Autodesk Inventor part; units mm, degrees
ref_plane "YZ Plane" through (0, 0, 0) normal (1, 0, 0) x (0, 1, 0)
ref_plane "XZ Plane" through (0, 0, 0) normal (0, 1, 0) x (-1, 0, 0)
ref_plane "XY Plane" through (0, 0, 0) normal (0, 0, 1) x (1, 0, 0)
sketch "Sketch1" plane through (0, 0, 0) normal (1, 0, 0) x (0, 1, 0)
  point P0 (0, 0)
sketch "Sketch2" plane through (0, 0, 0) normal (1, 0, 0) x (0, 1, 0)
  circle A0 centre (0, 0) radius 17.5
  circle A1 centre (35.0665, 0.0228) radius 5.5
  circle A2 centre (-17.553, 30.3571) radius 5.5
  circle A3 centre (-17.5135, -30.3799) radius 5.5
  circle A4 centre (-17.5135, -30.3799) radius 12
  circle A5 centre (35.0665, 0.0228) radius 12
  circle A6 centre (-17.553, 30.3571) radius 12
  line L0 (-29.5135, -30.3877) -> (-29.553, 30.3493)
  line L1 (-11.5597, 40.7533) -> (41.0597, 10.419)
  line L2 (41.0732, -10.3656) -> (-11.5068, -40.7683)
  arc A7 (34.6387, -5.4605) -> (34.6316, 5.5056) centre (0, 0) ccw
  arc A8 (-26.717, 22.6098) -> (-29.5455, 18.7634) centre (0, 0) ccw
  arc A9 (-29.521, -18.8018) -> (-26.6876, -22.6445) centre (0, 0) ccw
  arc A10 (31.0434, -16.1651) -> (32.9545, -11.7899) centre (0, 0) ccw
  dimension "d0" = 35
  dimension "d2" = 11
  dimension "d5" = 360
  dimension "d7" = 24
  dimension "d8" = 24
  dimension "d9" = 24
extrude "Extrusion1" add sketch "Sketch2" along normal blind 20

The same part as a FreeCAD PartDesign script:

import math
import FreeCAD as App
import Part
import Sketcher

doc = App.newDocument("Part")
body = doc.addObject("PartDesign::Body", "Body")

sketch1 = body.newObject("Sketcher::SketchObject", "Sketch")
sketch1.AttachmentSupport = (doc.getObject("YZ_Plane"), [""])
sketch1.MapMode = "FlatFace"
sketch1.addGeometry([
    Part.ArcOfCircle(Part.Circle(App.Vector(-18, -30, 0), App.Vector(0, 0, 1), 12), math.radians(-180), math.radians(-60)),
    Part.LineSegment(App.Vector(-12, -41, 0), App.Vector(41, -10, 0)),
    Part.ArcOfCircle(Part.Circle(App.Vector(35, 0, 0), App.Vector(0, 0, 1), 12), math.radians(-60), math.radians(60)),
    Part.LineSegment(App.Vector(41, 10, 0), App.Vector(-12, 41, 0)),
    Part.ArcOfCircle(Part.Circle(App.Vector(-18, 30, 0), App.Vector(0, 0, 1), 12), math.radians(60), math.radians(180)),
    Part.LineSegment(App.Vector(-30, 30, 0), App.Vector(-30, -30, 0)),
    Part.Circle(App.Vector(-18, -30, 0), App.Vector(0, 0, 1), 6),
    Part.Circle(App.Vector(0, 0, 0), App.Vector(0, 0, 1), 18),
    Part.Circle(App.Vector(-18, 30, 0), App.Vector(0, 0, 1), 6),
    Part.Circle(App.Vector(35, 0, 0), App.Vector(0, 0, 1), 6),
], False)
sketch1.addConstraint([
    Sketcher.Constraint("Tangent", 0, 2, 1, 1),
    Sketcher.Constraint("Tangent", 1, 2, 2, 1),
    Sketcher.Constraint("Tangent", 2, 2, 3, 1),
    Sketcher.Constraint("Tangent", 3, 2, 4, 1),
    Sketcher.Constraint("Tangent", 4, 2, 5, 1),
    Sketcher.Constraint("Tangent", 5, 2, 0, 1),
    Sketcher.Constraint("Coincident", 7, 3, -1, 1),
    Sketcher.Constraint("Coincident", 6, 3, 0, 3),
    Sketcher.Constraint("Coincident", 8, 3, 4, 3),
    Sketcher.Constraint("Coincident", 9, 3, 2, 3),
    Sketcher.Constraint("Equal", 0, 2),
    Sketcher.Constraint("Equal", 2, 4),
    Sketcher.Constraint("Equal", 6, 8),
    Sketcher.Constraint("Equal", 8, 9),
    Sketcher.Constraint("Equal", 1, 3),
    Sketcher.Constraint("Equal", 3, 5),
    Sketcher.Constraint("Diameter", 6, 11.0),
    Sketcher.Constraint("Diameter", 7, 35.0),
    Sketcher.Constraint("Radius", 0, 12.0),
    Sketcher.Constraint("DistanceY", 0, 3, -1, 1, 30.38),
    Sketcher.Constraint("DistanceX", 0, 3, 2, 3, 52.58),
    Sketcher.Constraint("Distance", 1, 60.737),
    Sketcher.Constraint("DistanceX", 4, 3, -1, 1, 17.553),
])
pad1 = body.newObject("PartDesign::Pad", "Pad")
pad1.Profile = sketch1
pad1.Length = 20

doc.recompute()
